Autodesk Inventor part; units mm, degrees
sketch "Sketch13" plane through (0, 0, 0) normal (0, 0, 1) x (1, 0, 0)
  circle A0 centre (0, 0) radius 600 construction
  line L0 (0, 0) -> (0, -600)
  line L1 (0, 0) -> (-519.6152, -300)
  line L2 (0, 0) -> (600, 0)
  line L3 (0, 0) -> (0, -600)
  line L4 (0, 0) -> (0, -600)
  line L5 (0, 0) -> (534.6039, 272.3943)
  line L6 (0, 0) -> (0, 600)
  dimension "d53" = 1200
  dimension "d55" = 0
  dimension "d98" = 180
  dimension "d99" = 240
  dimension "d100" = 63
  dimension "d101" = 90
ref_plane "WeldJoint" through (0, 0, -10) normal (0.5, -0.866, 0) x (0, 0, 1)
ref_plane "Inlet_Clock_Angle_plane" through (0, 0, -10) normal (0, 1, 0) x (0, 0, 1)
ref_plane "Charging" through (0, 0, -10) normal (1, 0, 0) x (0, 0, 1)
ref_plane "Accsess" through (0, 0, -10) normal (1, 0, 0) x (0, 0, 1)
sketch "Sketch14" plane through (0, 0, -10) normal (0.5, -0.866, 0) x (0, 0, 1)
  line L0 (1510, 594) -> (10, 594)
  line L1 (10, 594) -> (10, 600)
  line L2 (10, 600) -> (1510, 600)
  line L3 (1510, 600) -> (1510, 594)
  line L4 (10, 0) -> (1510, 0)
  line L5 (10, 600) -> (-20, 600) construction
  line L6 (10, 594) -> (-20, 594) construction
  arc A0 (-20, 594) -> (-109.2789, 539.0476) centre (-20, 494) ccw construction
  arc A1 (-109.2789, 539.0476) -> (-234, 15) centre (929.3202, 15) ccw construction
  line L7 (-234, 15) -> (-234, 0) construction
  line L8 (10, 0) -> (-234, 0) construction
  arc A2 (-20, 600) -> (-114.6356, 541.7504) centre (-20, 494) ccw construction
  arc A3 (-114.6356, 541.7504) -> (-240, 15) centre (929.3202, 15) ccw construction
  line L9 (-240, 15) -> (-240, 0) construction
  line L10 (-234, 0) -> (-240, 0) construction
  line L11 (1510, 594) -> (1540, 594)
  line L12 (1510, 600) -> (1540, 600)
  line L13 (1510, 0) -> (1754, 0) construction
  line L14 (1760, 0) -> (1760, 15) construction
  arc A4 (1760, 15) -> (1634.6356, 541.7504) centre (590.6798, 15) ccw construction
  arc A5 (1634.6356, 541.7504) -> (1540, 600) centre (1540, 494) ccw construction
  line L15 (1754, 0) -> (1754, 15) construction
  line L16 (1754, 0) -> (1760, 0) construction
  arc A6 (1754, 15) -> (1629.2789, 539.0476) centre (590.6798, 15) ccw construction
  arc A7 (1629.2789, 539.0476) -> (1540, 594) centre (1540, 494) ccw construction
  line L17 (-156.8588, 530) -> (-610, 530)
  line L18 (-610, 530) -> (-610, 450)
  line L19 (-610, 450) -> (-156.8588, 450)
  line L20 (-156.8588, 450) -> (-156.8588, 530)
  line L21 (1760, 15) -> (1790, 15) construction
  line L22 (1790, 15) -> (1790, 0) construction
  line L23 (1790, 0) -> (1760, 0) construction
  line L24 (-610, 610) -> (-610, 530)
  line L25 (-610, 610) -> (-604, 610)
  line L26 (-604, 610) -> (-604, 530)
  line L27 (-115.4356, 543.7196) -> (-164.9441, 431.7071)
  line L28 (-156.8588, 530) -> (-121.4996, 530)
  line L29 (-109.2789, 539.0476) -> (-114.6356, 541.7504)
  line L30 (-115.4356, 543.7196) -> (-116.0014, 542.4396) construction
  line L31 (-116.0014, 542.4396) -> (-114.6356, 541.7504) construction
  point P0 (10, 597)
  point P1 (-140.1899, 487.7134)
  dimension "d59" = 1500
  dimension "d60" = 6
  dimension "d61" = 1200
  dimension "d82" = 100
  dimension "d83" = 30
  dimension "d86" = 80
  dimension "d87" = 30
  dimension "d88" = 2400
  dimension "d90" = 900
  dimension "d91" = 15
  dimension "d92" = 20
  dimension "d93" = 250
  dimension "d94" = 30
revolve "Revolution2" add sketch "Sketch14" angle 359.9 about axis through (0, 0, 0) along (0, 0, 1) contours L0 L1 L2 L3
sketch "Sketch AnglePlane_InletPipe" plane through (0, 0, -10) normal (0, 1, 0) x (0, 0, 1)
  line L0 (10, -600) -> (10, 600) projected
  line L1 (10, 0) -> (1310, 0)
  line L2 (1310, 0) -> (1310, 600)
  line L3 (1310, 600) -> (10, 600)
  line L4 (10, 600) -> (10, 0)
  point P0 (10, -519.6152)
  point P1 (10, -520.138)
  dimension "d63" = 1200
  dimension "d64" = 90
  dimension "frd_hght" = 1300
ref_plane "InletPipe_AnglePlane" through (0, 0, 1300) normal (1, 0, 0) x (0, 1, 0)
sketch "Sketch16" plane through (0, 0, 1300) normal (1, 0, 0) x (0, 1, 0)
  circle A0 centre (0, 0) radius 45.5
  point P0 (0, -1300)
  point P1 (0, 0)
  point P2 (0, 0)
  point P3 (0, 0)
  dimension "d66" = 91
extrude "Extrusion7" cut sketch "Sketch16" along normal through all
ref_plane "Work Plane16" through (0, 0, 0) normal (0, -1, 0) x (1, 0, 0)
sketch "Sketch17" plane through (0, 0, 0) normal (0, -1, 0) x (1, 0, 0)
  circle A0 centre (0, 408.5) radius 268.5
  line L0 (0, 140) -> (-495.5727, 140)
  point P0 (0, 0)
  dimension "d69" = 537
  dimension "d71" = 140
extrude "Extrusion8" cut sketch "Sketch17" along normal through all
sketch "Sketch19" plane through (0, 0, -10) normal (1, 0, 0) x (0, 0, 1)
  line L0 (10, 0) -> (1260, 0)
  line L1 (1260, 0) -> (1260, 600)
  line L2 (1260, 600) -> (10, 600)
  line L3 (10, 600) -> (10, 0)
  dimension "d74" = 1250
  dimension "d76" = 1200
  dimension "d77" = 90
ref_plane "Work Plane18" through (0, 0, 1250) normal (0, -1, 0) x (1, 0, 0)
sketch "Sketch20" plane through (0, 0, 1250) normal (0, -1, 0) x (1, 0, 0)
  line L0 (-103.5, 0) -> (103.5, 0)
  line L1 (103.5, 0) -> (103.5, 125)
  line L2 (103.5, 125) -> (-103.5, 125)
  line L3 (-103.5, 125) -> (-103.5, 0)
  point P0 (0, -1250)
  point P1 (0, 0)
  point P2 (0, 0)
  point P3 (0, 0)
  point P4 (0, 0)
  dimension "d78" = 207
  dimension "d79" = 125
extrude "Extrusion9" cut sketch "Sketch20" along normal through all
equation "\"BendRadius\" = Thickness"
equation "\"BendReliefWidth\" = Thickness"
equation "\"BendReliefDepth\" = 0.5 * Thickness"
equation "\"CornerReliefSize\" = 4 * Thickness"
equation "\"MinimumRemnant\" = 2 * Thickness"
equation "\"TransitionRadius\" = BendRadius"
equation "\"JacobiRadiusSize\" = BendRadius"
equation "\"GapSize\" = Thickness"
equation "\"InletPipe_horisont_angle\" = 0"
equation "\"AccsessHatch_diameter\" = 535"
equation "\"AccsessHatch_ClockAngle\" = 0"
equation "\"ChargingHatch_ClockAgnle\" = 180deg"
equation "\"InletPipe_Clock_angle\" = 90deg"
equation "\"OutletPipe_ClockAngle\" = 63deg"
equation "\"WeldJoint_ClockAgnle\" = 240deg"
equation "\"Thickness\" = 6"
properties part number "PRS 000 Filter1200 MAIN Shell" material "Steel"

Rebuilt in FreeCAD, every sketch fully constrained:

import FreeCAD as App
import Part
import Sketcher

V = App.Vector


def add_polygon(sketch, points):
    """Adds a closed chain of lines whose ends are joined by coincident constraints."""
    first, n = sketch.GeometryCount, len(points)
    for a, b in zip(points, points[1:] + points[:1]):
        sketch.addGeometry(Part.LineSegment(App.Vector(*a, 0), App.Vector(*b, 0)), False)
    for i in range(n):
        sketch.addConstraint(Sketcher.Constraint("Coincident", first + i, 2, first + (i + 1) % n, 1))

doc = App.newDocument("Part")
params = doc.addObject("Spreadsheet::Sheet", "Params")
for row, (alias, value) in enumerate([
    ("sketch1_width", "1500 mm"),
    ("sketch1_height", "6 mm"),
    ("revolution_angle", "359.9 deg"),
    ("sketch2_diameter", "91 mm"),
    ("sketch3_diameter", "537 mm"),
    ("sketch4_width", "207 mm"),
    ("sketch4_height", "125 mm"),
], start=1):
    params.set(f"A{row}", alias)
    params.set(f"B{row}", "=" + value)
    params.setAlias(f"B{row}", alias)

body = doc.addObject("PartDesign::Body", "Body")

# Sketch on an angled plane
sketch1 = body.newObject("Sketcher::SketchObject", "Sketch")
sketch1.Placement = App.Placement(V(0, 0, -10), App.Rotation(V(0, 0, 1), V(-0.866025404, -0.5, 0), V(0.5, -0.866025404, 0), "ZXY"))
add_polygon(sketch1, [(10, 594), (1510, 594), (1510, 600), (10, 600)])  # lines 0-3
sketch1.addConstraint([
    Sketcher.Constraint("Horizontal", 0),
    Sketcher.Constraint("Vertical", 1),
    Sketcher.Constraint("Horizontal", 2),
    Sketcher.Constraint("Vertical", 3),
    Sketcher.Constraint("DistanceX", 0, 1, 0, 2, 1500.0),
    Sketcher.Constraint("DistanceY", 1, 1, 1, 2, 6.0),
    Sketcher.Constraint("DistanceX", -1, 1, 0, 2, 1510.0),
    Sketcher.Constraint("DistanceY", -1, 1, 0, 2, 594.0),
])
sketch1.setExpression("Constraints[8]", "Params.sketch1_width")
sketch1.setExpression("Constraints[9]", "Params.sketch1_height")
revolution = body.newObject("PartDesign::Revolution", "Revolution")
revolution.Profile = sketch1
revolution.ReferenceAxis = (sketch1, ["H_Axis"])
revolution.setExpression("Angle", "Params.revolution_angle")

# Sketch on YZ plane
sketch2 = body.newObject("Sketcher::SketchObject", "Sketch001")
sketch2.AttachmentSupport = (doc.getObject("YZ_Plane"), [""])
sketch2.MapMode = "FlatFace"
sketch2.addGeometry(Part.Circle(V(0, 1300, 0), V(0, 0, 1), 46), False)
sketch2.addConstraint([
    Sketcher.Constraint("PointOnObject", 0, 3, -2),
    Sketcher.Constraint("Diameter", 0, 91.0),
    Sketcher.Constraint("DistanceY", -1, 1, 0, 3, 1300.0),
])
sketch2.setExpression("Constraints[1]", "Params.sketch2_diameter")
pocket1 = body.newObject("PartDesign::Pocket", "Pocket")
pocket1.Profile = sketch2
pocket1.Type = "ThroughAll"
pocket1.Reversed = True

# Sketch on XZ plane
sketch3 = body.newObject("Sketcher::SketchObject", "Sketch002")
sketch3.AttachmentSupport = (doc.getObject("XZ_Plane"), [""])
sketch3.MapMode = "FlatFace"
sketch3.addGeometry(Part.Circle(V(0, 408, 0), V(0, 0, 1), 268), False)
sketch3.addConstraint([
    Sketcher.Constraint("PointOnObject", 0, 3, -2),
    Sketcher.Constraint("Diameter", 0, 537.0),
    Sketcher.Constraint("DistanceY", -1, 1, 0, 3, 408.5),
])
sketch3.setExpression("Constraints[1]", "Params.sketch3_diameter")
pocket2 = body.newObject("PartDesign::Pocket", "Pocket001")
pocket2.Profile = sketch3
pocket2.Type = "ThroughAll"
pocket2.Reversed = True

# Sketch on XZ plane
sketch4 = body.newObject("Sketcher::SketchObject", "Sketch003")
sketch4.AttachmentSupport = (doc.getObject("XZ_Plane"), [""])
sketch4.MapMode = "FlatFace"
add_polygon(sketch4, [(-104, 1375), (-104, 1250), (104, 1250), (104, 1375)])  # lines 0-3
sketch4.addConstraint([
    Sketcher.Constraint("Vertical", 0),
    Sketcher.Constraint("Horizontal", 1),
    Sketcher.Constraint("Vertical", 2),
    Sketcher.Constraint("Horizontal", 3),
    Sketcher.Constraint("DistanceX", 1, 1, 1, 2, 207.0),
    Sketcher.Constraint("DistanceY", 0, 2, 0, 1, 125.0),
    Sketcher.Constraint("DistanceY", -1, 1, 0, 2, 1250.0),
    Sketcher.Constraint("DistanceX", 0, 2, -1, 1, 103.5),
])
sketch4.setExpression("Constraints[8]", "Params.sketch4_width")
sketch4.setExpression("Constraints[9]", "Params.sketch4_height")
pocket3 = body.newObject("PartDesign::Pocket", "Pocket002")
pocket3.Profile = sketch4
pocket3.Type = "ThroughAll"
pocket3.Reversed = True

doc.recompute()
